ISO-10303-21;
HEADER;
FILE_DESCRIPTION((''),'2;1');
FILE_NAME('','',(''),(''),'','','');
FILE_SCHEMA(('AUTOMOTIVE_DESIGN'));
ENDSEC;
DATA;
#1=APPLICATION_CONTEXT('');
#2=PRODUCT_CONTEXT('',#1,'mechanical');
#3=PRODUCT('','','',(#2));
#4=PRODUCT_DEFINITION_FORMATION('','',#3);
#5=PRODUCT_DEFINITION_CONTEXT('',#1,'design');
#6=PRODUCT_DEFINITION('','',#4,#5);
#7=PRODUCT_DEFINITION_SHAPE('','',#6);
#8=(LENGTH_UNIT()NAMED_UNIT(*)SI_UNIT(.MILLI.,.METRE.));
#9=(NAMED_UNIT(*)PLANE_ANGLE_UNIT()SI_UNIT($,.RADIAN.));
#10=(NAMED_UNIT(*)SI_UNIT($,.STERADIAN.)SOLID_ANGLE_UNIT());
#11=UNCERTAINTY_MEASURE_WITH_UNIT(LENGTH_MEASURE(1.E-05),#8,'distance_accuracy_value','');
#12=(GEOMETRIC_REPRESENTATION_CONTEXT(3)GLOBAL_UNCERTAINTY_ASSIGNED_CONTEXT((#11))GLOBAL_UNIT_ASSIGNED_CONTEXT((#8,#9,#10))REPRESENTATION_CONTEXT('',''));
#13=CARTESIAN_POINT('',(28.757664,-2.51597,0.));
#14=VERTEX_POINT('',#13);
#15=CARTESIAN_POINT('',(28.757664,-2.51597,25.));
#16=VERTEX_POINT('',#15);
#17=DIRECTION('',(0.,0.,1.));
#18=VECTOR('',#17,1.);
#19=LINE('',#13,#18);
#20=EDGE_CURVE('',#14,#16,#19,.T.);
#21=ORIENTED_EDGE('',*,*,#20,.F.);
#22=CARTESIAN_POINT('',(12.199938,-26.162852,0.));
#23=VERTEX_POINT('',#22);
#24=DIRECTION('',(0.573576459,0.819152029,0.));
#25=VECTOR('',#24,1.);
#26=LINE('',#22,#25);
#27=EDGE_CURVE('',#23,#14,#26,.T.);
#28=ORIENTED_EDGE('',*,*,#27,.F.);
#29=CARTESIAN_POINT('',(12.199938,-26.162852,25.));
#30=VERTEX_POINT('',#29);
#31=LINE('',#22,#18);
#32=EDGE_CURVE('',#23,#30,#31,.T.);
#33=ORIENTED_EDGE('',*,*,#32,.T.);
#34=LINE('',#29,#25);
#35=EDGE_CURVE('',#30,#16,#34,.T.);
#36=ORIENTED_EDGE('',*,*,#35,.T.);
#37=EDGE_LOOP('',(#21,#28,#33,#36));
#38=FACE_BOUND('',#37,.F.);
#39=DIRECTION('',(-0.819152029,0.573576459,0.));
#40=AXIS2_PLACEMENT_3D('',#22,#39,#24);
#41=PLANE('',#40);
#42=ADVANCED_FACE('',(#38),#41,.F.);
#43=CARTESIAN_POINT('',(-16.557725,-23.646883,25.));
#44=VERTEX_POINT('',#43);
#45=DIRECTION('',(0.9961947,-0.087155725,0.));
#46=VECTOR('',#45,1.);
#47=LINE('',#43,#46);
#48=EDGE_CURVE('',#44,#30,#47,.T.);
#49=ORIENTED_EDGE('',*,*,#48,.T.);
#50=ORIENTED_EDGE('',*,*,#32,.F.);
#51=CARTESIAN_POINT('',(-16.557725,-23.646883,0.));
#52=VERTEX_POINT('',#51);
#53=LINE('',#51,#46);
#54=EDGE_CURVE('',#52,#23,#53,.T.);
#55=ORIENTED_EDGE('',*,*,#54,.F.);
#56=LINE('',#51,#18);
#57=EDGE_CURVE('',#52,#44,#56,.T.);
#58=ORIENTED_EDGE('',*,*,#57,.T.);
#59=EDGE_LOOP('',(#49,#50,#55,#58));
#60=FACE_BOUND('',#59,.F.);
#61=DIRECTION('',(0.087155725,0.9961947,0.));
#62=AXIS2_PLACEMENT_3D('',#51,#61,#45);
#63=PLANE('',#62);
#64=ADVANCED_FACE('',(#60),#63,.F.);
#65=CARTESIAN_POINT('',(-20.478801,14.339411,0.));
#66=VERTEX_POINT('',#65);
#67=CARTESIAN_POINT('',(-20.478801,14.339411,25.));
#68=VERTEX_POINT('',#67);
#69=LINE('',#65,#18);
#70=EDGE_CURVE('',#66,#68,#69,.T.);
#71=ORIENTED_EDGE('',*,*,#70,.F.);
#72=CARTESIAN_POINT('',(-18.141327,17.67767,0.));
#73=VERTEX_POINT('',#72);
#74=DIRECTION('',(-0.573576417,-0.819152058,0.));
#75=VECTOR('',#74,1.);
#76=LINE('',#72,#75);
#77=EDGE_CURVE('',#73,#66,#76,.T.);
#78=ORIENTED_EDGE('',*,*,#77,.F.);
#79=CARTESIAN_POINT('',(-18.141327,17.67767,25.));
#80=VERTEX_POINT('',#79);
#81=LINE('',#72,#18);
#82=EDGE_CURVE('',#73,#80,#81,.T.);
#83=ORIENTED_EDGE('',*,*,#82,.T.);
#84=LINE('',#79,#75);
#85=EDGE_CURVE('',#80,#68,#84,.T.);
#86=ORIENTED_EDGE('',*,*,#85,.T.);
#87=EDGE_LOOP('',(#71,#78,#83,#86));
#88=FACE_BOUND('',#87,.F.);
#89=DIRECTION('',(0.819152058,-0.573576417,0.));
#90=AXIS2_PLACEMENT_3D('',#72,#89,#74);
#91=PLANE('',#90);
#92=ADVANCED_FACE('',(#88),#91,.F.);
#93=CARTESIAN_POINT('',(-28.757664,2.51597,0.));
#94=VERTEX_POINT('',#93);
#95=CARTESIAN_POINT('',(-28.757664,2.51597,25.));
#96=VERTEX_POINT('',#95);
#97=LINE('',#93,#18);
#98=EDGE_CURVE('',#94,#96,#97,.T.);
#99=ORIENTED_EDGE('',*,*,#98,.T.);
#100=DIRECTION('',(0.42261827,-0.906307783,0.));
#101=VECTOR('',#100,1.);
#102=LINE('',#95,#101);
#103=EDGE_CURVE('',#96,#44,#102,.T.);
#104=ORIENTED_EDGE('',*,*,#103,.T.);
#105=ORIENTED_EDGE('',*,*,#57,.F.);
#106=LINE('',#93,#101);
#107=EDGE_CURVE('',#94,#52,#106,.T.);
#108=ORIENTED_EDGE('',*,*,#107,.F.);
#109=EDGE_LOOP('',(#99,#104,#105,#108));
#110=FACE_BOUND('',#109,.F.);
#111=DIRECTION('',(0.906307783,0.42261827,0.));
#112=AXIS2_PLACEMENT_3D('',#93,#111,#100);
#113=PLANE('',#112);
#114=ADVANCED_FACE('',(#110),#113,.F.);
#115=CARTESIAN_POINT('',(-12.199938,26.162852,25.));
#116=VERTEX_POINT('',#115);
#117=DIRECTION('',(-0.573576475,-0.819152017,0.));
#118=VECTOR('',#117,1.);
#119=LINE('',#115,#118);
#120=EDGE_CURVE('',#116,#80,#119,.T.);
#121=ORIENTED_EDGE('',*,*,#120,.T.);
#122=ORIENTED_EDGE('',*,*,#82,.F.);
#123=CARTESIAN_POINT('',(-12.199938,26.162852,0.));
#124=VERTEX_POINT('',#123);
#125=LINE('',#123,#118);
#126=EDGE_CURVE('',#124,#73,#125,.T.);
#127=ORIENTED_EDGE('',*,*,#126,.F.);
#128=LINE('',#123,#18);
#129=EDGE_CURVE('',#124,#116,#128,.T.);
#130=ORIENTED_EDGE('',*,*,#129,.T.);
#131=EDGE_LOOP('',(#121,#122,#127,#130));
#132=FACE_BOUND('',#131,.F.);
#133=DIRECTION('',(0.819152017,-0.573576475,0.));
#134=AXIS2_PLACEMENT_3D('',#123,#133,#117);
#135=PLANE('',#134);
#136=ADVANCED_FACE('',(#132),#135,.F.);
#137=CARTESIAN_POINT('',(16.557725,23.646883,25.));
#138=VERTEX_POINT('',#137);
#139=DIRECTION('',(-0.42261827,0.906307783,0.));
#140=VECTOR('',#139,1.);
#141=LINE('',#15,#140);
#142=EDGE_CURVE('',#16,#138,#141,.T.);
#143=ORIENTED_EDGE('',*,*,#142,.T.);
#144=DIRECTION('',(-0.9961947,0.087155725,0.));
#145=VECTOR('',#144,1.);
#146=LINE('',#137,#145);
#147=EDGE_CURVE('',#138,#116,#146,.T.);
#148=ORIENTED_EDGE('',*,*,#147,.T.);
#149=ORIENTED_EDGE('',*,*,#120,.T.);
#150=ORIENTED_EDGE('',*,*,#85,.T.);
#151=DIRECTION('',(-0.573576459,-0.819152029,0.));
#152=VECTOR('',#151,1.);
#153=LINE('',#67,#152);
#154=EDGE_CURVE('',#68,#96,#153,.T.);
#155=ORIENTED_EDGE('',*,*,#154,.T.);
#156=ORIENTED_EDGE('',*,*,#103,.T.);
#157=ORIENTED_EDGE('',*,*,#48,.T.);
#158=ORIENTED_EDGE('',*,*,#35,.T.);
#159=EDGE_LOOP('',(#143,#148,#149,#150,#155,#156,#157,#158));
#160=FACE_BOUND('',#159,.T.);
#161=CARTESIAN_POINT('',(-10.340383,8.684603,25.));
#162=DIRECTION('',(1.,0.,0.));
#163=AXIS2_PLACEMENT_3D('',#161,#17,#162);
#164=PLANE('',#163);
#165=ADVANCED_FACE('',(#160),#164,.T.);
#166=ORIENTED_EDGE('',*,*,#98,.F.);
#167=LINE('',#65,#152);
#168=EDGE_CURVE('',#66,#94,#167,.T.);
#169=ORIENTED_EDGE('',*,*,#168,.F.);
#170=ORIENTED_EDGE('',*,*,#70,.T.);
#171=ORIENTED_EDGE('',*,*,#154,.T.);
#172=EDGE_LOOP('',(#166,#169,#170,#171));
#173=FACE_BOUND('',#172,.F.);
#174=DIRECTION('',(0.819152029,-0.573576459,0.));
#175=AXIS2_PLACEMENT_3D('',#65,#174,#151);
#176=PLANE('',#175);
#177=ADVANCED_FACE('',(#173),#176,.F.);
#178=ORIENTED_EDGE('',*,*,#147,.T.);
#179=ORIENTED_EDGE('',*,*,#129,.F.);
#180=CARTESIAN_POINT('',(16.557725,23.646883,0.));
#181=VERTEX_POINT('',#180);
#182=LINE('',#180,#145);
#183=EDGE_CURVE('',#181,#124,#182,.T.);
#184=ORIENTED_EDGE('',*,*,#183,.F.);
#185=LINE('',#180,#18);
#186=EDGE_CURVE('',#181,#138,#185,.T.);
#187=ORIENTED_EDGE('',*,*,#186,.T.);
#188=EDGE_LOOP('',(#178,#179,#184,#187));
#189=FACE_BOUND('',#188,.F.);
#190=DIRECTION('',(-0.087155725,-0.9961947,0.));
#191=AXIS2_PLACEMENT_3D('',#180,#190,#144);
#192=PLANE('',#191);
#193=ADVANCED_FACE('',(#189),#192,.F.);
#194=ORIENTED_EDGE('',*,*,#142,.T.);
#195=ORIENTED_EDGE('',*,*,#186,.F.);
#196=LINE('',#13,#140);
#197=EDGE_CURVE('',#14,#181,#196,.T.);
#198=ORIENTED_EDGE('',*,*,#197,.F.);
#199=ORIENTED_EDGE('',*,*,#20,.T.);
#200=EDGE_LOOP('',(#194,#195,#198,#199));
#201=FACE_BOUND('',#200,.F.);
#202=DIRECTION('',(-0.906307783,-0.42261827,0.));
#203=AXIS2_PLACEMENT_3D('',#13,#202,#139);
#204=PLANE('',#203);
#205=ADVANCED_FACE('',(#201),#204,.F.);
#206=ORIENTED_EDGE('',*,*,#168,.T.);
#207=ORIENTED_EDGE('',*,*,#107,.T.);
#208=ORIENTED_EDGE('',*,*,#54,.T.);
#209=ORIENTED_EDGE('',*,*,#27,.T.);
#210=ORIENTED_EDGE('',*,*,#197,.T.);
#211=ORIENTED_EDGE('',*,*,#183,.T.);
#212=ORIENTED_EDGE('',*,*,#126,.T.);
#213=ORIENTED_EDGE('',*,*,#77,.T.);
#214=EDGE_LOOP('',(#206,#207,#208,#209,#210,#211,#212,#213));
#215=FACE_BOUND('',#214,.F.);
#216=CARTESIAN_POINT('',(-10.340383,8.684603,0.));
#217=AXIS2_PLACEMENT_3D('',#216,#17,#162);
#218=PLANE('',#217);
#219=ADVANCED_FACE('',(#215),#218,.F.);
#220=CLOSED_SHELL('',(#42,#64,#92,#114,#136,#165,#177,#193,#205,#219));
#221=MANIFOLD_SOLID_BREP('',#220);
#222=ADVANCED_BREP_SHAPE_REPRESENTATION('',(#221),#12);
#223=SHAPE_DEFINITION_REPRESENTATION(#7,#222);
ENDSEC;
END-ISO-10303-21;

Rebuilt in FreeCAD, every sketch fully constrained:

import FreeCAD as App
import Part
import Sketcher
from FreeCAD import Vector
Q = App.Units.Quantity

doc = App.newDocument("Part")
params = doc.addObject("Spreadsheet::Sheet", "Params")
for row, (alias, value) in enumerate([
    ("pad1_length", "25 mm"),
], start=1):
    params.set(f"A{row}", alias)
    params.set(f"B{row}", "=" + value)
    params.setAlias(f"B{row}", alias)

body = doc.addObject("PartDesign::Body", "Body")

# Sketch on XY plane
sketch1 = body.newObject("Sketcher::SketchObject", "Sketch")
sketch1.AttachmentSupport = (doc.getObject("XY_Plane"), [""])
sketch1.MapMode = "FlatFace"
sketch1.addGeometry([
    Part.LineSegment(Vector(-18.1, 17.7, 0), Vector(-20.5, 14.3, 0)),  # 0
    Part.LineSegment(Vector(-20.5, 14.3, 0), Vector(-28.8, 2.5, 0)),  # 1
    Part.LineSegment(Vector(-28.8, 2.5, 0), Vector(-16.6, -23.6, 0)),  # 2
    Part.LineSegment(Vector(-16.6, -23.6, 0), Vector(12.2, -26.2, 0)),  # 3
    Part.LineSegment(Vector(12.2, -26.2, 0), Vector(28.8, -2.5, 0)),  # 4
    Part.LineSegment(Vector(28.8, -2.5, 0), Vector(16.6, 23.6, 0)),  # 5
    Part.LineSegment(Vector(16.6, 23.6, 0), Vector(-12.2, 26.2, 0)),  # 6
    Part.LineSegment(Vector(-12.2, 26.2, 0), Vector(-18.1, 17.7, 0)),  # 7
], False)
sketch1.addConstraint([
    Sketcher.Constraint("Coincident", 0, 2, 1, 1),
    Sketcher.Constraint("Coincident", 1, 2, 2, 1),
    Sketcher.Constraint("Coincident", 2, 2, 3, 1),
    Sketcher.Constraint("Coincident", 3, 2, 4, 1),
    Sketcher.Constraint("Coincident", 4, 2, 5, 1),
    Sketcher.Constraint("Coincident", 5, 2, 6, 1),
    Sketcher.Constraint("Coincident", 6, 2, 7, 1),
    Sketcher.Constraint("Coincident", 7, 2, 0, 1),
    Sketcher.Constraint("Symmetric", 1, 2, 4, 2, -1, 1),
    Sketcher.Constraint("Symmetric", 2, 2, 5, 2, -1, 1),
    Sketcher.Constraint("Symmetric", 3, 2, 6, 2, -1, 1),
    Sketcher.Constraint("Parallel", 0, 1),
    Sketcher.Constraint("Parallel", 1, 4),
    Sketcher.Constraint("Equal", 2, 3),
    Sketcher.Constraint("Equal", 3, 4),
    Sketcher.Constraint("Angle", 0, Q("-124.999999 deg")),
    Sketcher.Constraint("Angle", 2, Q("-64.999999 deg")),
    Sketcher.Constraint("Angle", 3, Q("-4.999999 deg")),
    Sketcher.Constraint("DistanceX", 0, 2, -1, 1, Q("20.478801 mm")),
    Sketcher.Constraint("DistanceX", 1, 2, 3, 2, Q("40.957602 mm")),
    Sketcher.Constraint("DistanceY", 1, 2, 7, 2, Q("15.1617 mm")),
])
pad1 = body.newObject("PartDesign::Pad", "Pad")
pad1.Profile = sketch1
pad1.setExpression("Length", "Params.pad1_length")

doc.recompute()
